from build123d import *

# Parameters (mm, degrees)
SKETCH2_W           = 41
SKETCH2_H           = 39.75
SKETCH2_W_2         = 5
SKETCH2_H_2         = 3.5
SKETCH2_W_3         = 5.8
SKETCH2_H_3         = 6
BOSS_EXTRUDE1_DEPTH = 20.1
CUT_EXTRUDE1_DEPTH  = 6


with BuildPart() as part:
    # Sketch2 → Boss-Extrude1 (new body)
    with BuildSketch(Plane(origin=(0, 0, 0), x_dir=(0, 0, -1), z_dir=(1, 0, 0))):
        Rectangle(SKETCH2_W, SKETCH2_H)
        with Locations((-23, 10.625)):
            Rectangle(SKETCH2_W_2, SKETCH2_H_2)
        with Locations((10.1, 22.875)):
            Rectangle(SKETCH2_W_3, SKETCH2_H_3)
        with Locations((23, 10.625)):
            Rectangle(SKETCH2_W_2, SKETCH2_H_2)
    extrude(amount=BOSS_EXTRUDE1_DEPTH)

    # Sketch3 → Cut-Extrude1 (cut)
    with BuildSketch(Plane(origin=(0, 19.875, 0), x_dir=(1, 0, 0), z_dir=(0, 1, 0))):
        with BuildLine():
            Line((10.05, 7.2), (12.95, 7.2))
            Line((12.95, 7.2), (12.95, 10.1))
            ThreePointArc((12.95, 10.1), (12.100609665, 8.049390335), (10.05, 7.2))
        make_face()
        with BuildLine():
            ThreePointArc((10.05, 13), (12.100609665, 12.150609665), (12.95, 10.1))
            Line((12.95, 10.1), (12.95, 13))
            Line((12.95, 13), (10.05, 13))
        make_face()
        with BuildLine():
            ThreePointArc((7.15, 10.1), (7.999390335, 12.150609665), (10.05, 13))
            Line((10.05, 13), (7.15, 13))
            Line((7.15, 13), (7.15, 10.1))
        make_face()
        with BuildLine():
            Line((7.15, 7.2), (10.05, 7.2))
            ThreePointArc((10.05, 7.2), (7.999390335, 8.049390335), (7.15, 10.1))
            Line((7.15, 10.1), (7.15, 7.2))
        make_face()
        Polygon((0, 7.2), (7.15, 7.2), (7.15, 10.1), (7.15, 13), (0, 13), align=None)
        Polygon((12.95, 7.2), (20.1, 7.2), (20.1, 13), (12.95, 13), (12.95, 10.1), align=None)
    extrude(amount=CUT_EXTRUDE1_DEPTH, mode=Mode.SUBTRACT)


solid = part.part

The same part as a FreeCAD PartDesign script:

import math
import FreeCAD as App
import Part
import Sketcher
from FreeCAD import Vector
Q = App.Units.Quantity


def add_polygon(sketch, points):
    """Adds a closed chain of lines whose ends are joined by coincident constraints."""
    first, n = sketch.GeometryCount, len(points)
    for a, b in zip(points, points[1:] + points[:1]):
        sketch.addGeometry(Part.LineSegment(App.Vector(*a, 0), App.Vector(*b, 0)), False)
    for i in range(n):
        sketch.addConstraint(Sketcher.Constraint("Coincident", first + i, 2, first + (i + 1) % n, 1))

doc = App.newDocument("Part")
params = doc.addObject("Spreadsheet::Sheet", "Params")
for row, (alias, value) in enumerate([
    ("sketch1_width", "6 mm"),
    ("sketch1_height", "41 mm"),
    ("sketch1_height2", "5 mm"),
    ("sketch1_width2", "3.5 mm"),
    ("sketch1_width3", "7.5 mm"),
    ("pad1_length", "20.1 mm"),
    ("sketch2_radius", "2.9 mm"),
    ("sketch2_width", "10.05 mm"),
    ("pocket1_length", "6 mm"),
], start=1):
    params.set(f"A{row}", alias)
    params.set(f"B{row}", "=" + value)
    params.setAlias(f"B{row}", alias)

body = doc.addObject("PartDesign::Body", "Body")

# Sketch on YZ plane
sketch1 = body.newObject("Sketcher::SketchObject", "Sketch")
sketch1.AttachmentSupport = (doc.getObject("YZ_Plane"), [""])
sketch1.MapMode = "FlatFace"
add_polygon(sketch1, [(8.875, 20.5), (-19.875, 20.5), (-19.875, -20.5), (8.875, -20.5), (8.875, -25.5), (12.375, -25.5), (12.375, -20.5), (19.875, -20.5), (19.875, -13), (25.875, -13), (25.875, -7.2), (19.875, -7.2), (19.875, 20.5), (12.375, 20.5), (12.375, 25.5), (8.875, 25.5)])  # lines 0-15
sketch1.addConstraint([
    Sketcher.Constraint("Horizontal", 0),
    Sketcher.Constraint("Vertical", 1),
    Sketcher.Constraint("Horizontal", 2),
    Sketcher.Constraint("Vertical", 3),
    Sketcher.Constraint("Horizontal", 4),
    Sketcher.Constraint("Vertical", 5),
    Sketcher.Constraint("Horizontal", 6),
    Sketcher.Constraint("Vertical", 7),
    Sketcher.Constraint("Horizontal", 8),
    Sketcher.Constraint("Vertical", 9),
    Sketcher.Constraint("Horizontal", 10),
    Sketcher.Constraint("Vertical", 11),
    Sketcher.Constraint("Horizontal", 12),
    Sketcher.Constraint("Vertical", 13),
    Sketcher.Constraint("Horizontal", 14),
    Sketcher.Constraint("Vertical", 15),
    Sketcher.Constraint("Symmetric", 0, 2, 6, 2, -1, 1),
    Sketcher.Constraint("Symmetric", 1, 2, 11, 2, -1, 1),
    Sketcher.Constraint("Symmetric", 5, 2, 12, 2, -1),
    Sketcher.Constraint("Symmetric", 3, 2, 14, 2, -1),
    Sketcher.Constraint("Equal", 12, 7),
    Sketcher.Constraint("DistanceX", 8, 1, 8, 2, Q("6 mm")),
    Sketcher.Constraint("DistanceY", 1, 2, 1, 1, Q("41 mm")),
    Sketcher.Constraint("DistanceY", 3, 2, 3, 1, Q("5 mm")),
    Sketcher.Constraint("DistanceX", 4, 1, 4, 2, Q("3.5 mm")),
    Sketcher.Constraint("DistanceX", 6, 1, 6, 2, Q("7.5 mm")),
    Sketcher.Constraint("DistanceY", 9, 1, 9, 2, Q("5.8 mm")),
    Sketcher.Constraint("DistanceX", 0, 2, 0, 1, Q("28.75 mm")),
])
sketch1.setExpression("Constraints[37]", "Params.sketch1_width")
sketch1.setExpression("Constraints[38]", "Params.sketch1_height")
sketch1.setExpression("Constraints[39]", "Params.sketch1_height2")
sketch1.setExpression("Constraints[40]", "Params.sketch1_width2")
sketch1.setExpression("Constraints[41]", "Params.sketch1_width3")
pad1 = body.newObject("PartDesign::Pad", "Pad")
pad1.Profile = sketch1
pad1.setExpression("Length", "Params.pad1_length")

# Sketch on XZ plane
sketch2 = body.newObject("Sketcher::SketchObject", "Sketch001")
sketch2.AttachmentSupport = (doc.getObject("XZ_Plane"), [""])
sketch2.MapMode = "FlatFace"
sketch2.AttachmentOffset = App.Placement(Vector(0, 0, -19.875), App.Rotation())
sketch2.addGeometry([
    Part.LineSegment(Vector(10.05, -7.2, 0), Vector(20.1, -7.2, 0)),  # 0
    Part.LineSegment(Vector(20.1, -7.2, 0), Vector(20.1, -13, 0)),  # 1
    Part.LineSegment(Vector(20.1, -13, 0), Vector(10.05, -13, 0)),  # 2
    Part.ArcOfCircle(Part.Circle(Vector(10.05, -10.1, 0), Vector(0, 0, 1), 2.9), math.radians(-90), math.radians(0)),  # 3
    Part.ArcOfCircle(Part.Circle(Vector(10.05, -10.1, 0), Vector(0, 0, 1), 2.9), math.radians(0), math.radians(90)),  # 4
    Part.ArcOfCircle(Part.Circle(Vector(10.05, -10.1, 0), Vector(0, 0, 1), 2.9), math.radians(-180), math.radians(-90)),  # 5
    Part.LineSegment(Vector(10.05, -13, 0), Vector(0, -13, 0)),  # 6
    Part.LineSegment(Vector(0, -13, 0), Vector(0, -7.2, 0)),  # 7
    Part.LineSegment(Vector(0, -7.2, 0), Vector(10.05, -7.2, 0)),  # 8
    Part.ArcOfCircle(Part.Circle(Vector(10.05, -10.1, 0), Vector(0, 0, 1), 2.9), math.radians(90), math.radians(180)),  # 9
], False)
sketch2.addConstraint([
    Sketcher.Constraint("Coincident", 0, 2, 1, 1),
    Sketcher.Constraint("Coincident", 1, 2, 2, 1),
    Sketcher.Constraint("Tangent", 2, 2, 3, 1),
    Sketcher.Constraint("Tangent", 3, 2, 4, 1),
    Sketcher.Constraint("Tangent", 4, 2, 0, 1),
    Sketcher.Constraint("Tangent", 5, 2, 6, 1),
    Sketcher.Constraint("Coincident", 6, 2, 7, 1),
    Sketcher.Constraint("Coincident", 7, 2, 8, 1),
    Sketcher.Constraint("Tangent", 8, 2, 9, 1),
    Sketcher.Constraint("Tangent", 9, 2, 5, 1),
    Sketcher.Constraint("Horizontal", 0),
    Sketcher.Constraint("Vertical", 1),
    Sketcher.Constraint("Horizontal", 2),
    Sketcher.Constraint("Horizontal", 6),
    Sketcher.Constraint("Vertical", 7),
    Sketcher.Constraint("Horizontal", 8),
    Sketcher.Constraint("Coincident", 5, 3, 3, 3),
    Sketcher.Constraint("Coincident", 8, 2, 4, 2),
    Sketcher.Constraint("Equal", 3, 4),
    Sketcher.Constraint("PointOnObject", 6, 2, -2),
    Sketcher.Constraint("Horizontal", 9, 3, 3, 2),
    Sketcher.Constraint("Horizontal", 3, 2, 9, 2),
    Sketcher.Constraint("Equal", 2, 6),
    Sketcher.Constraint("Radius", 3, Q("2.9 mm")),
    Sketcher.Constraint("DistanceY", 1, 2, -1, 1, Q("13 mm")),
    Sketcher.Constraint("DistanceX", 0, 1, 0, 2, Q("10.05 mm")),
])
sketch2.setExpression("Constraints[23]", "Params.sketch2_radius")
sketch2.setExpression("Constraints[25]", "Params.sketch2_width")
pocket1 = body.newObject("PartDesign::Pocket", "Pocket")
pocket1.Profile = sketch2
pocket1.setExpression("Length", "Params.pocket1_length")

doc.recompute()
